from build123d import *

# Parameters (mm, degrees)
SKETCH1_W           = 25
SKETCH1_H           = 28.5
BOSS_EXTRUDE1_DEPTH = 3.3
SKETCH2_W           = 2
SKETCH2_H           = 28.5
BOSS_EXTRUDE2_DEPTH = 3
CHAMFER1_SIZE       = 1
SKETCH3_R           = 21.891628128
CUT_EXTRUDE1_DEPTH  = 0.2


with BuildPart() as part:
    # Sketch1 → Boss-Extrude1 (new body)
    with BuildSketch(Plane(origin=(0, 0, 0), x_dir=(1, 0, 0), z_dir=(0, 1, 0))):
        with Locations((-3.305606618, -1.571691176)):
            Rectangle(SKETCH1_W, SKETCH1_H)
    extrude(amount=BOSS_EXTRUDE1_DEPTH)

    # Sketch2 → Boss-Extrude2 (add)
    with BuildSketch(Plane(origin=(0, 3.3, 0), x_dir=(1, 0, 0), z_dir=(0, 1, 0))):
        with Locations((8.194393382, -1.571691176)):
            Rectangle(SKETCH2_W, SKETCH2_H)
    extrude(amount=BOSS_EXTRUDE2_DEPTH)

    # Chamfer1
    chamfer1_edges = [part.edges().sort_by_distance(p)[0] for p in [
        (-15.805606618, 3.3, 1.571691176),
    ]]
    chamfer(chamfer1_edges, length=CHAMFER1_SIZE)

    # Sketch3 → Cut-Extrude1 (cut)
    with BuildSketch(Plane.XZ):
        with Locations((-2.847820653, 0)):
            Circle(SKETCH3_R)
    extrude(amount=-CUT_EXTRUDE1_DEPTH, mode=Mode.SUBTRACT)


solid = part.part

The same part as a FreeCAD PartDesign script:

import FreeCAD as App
import Part
import Sketcher

V = App.Vector


def edges_at(feature, points):
    """Names of the edges that pass closest to the given points."""
    edges = feature.Shape.Edges
    near = lambda p: min(range(len(edges)), key=lambda i: edges[i].distToShape(Part.Vertex(*p))[0])
    return sorted({f"Edge{near(p) + 1}" for p in points})

doc = App.newDocument("Part")
body = doc.addObject("PartDesign::Body", "Body")

# Sketch on XZ plane
sketch1 = doc.addObject("Sketcher::SketchObject", "Sketch")
body.addObject(sketch1)
sketch1.AttachmentSupport = (doc.XZ_Plane, [""])
sketch1.MapMode = "FlatFace"
sketch1.addGeometry(Part.LineSegment(V(-16, -13, 0), V(-16, 16, 0)), False)
sketch1.addGeometry(Part.LineSegment(V(-16, 16, 0), V(9, 16, 0)), False)
sketch1.addGeometry(Part.LineSegment(V(9, 16, 0), V(9, -13, 0)), False)
sketch1.addGeometry(Part.LineSegment(V(9, -13, 0), V(-16, -13, 0)), False)
sketch1.addConstraint(Sketcher.Constraint("Coincident", 0, 2, 1, 1))
sketch1.addConstraint(Sketcher.Constraint("Coincident", 1, 2, 2, 1))
sketch1.addConstraint(Sketcher.Constraint("Coincident", 2, 2, 3, 1))
sketch1.addConstraint(Sketcher.Constraint("Coincident", 3, 2, 0, 1))
sketch1.addConstraint(Sketcher.Constraint("Vertical", 0))
sketch1.addConstraint(Sketcher.Constraint("Horizontal", 1))
sketch1.addConstraint(Sketcher.Constraint("Vertical", 2))
sketch1.addConstraint(Sketcher.Constraint("Horizontal", 3))
sketch1.addConstraint(Sketcher.Constraint("DistanceX", 1, 1, 1, 2, 25.0))
sketch1.addConstraint(Sketcher.Constraint("DistanceY", 0, 1, 0, 2, 28.5))
sketch1.addConstraint(Sketcher.Constraint("DistanceY", -1, 1, 0, 2, 15.821691))
sketch1.addConstraint(Sketcher.Constraint("DistanceX", 0, 2, -1, 1, 15.805607))
pad1 = doc.addObject("PartDesign::Pad", "Pad")
body.addObject(pad1)
pad1.Profile = sketch1
pad1.Length = 3.3
pad1.Reversed = True

# Sketch on XZ plane
sketch2 = doc.addObject("Sketcher::SketchObject", "Sketch001")
body.addObject(sketch2)
sketch2.AttachmentSupport = (doc.XZ_Plane, [""])
sketch2.MapMode = "FlatFace"
sketch2.AttachmentOffset = App.Placement(V(0, 0, -3.3), App.Rotation())
sketch2.addGeometry(Part.LineSegment(V(7.2, -12.7, 0), V(7.2, 15.8, 0)), False)
sketch2.addGeometry(Part.LineSegment(V(7.2, 15.8, 0), V(9.2, 15.8, 0)), False)
sketch2.addGeometry(Part.LineSegment(V(9.2, 15.8, 0), V(9.2, -12.7, 0)), False)
sketch2.addGeometry(Part.LineSegment(V(9.2, -12.7, 0), V(7.2, -12.7, 0)), False)
sketch2.addConstraint(Sketcher.Constraint("Coincident", 0, 2, 1, 1))
sketch2.addConstraint(Sketcher.Constraint("Coincident", 1, 2, 2, 1))
sketch2.addConstraint(Sketcher.Constraint("Coincident", 2, 2, 3, 1))
sketch2.addConstraint(Sketcher.Constraint("Coincident", 3, 2, 0, 1))
sketch2.addConstraint(Sketcher.Constraint("Vertical", 0))
sketch2.addConstraint(Sketcher.Constraint("Horizontal", 1))
sketch2.addConstraint(Sketcher.Constraint("Vertical", 2))
sketch2.addConstraint(Sketcher.Constraint("Horizontal", 3))
sketch2.addConstraint(Sketcher.Constraint("DistanceX", 1, 1, 1, 2, 2.0))
sketch2.addConstraint(Sketcher.Constraint("DistanceY", 0, 1, 0, 2, 28.5))
sketch2.addConstraint(Sketcher.Constraint("DistanceY", -1, 1, 0, 2, 15.821691))
sketch2.addConstraint(Sketcher.Constraint("DistanceX", -1, 1, 0, 2, 7.194393))
pad2 = doc.addObject("PartDesign::Pad", "Pad001")
body.addObject(pad2)
pad2.Profile = sketch2
pad2.Length = 3
pad2.Reversed = True
doc.recompute()

chamfer = doc.addObject("PartDesign::Chamfer", "Chamfer")
body.addObject(chamfer)
chamfer.Base = (pad2, edges_at(pad2, [(-15.806, 3.3, 1.572)]))
chamfer.Size = 1

# Sketch on XZ plane
sketch3 = doc.addObject("Sketcher::SketchObject", "Sketch002")
body.addObject(sketch3)
sketch3.AttachmentSupport = (doc.XZ_Plane, [""])
sketch3.MapMode = "FlatFace"
sketch3.addGeometry(Part.Circle(V(-3, 0, 0), V(0, 0, 1), 22), False)
sketch3.addConstraint(Sketcher.Constraint("PointOnObject", 0, 3, -1))
sketch3.addConstraint(Sketcher.Constraint("Diameter", 0, 43.783256))
sketch3.addConstraint(Sketcher.Constraint("DistanceX", 0, 3, -1, 1, 2.847821))
pocket1 = doc.addObject("PartDesign::Pocket", "Pocket")
body.addObject(pocket1)
pocket1.Profile = sketch3
pocket1.Length = 0.2

doc.recompute()
